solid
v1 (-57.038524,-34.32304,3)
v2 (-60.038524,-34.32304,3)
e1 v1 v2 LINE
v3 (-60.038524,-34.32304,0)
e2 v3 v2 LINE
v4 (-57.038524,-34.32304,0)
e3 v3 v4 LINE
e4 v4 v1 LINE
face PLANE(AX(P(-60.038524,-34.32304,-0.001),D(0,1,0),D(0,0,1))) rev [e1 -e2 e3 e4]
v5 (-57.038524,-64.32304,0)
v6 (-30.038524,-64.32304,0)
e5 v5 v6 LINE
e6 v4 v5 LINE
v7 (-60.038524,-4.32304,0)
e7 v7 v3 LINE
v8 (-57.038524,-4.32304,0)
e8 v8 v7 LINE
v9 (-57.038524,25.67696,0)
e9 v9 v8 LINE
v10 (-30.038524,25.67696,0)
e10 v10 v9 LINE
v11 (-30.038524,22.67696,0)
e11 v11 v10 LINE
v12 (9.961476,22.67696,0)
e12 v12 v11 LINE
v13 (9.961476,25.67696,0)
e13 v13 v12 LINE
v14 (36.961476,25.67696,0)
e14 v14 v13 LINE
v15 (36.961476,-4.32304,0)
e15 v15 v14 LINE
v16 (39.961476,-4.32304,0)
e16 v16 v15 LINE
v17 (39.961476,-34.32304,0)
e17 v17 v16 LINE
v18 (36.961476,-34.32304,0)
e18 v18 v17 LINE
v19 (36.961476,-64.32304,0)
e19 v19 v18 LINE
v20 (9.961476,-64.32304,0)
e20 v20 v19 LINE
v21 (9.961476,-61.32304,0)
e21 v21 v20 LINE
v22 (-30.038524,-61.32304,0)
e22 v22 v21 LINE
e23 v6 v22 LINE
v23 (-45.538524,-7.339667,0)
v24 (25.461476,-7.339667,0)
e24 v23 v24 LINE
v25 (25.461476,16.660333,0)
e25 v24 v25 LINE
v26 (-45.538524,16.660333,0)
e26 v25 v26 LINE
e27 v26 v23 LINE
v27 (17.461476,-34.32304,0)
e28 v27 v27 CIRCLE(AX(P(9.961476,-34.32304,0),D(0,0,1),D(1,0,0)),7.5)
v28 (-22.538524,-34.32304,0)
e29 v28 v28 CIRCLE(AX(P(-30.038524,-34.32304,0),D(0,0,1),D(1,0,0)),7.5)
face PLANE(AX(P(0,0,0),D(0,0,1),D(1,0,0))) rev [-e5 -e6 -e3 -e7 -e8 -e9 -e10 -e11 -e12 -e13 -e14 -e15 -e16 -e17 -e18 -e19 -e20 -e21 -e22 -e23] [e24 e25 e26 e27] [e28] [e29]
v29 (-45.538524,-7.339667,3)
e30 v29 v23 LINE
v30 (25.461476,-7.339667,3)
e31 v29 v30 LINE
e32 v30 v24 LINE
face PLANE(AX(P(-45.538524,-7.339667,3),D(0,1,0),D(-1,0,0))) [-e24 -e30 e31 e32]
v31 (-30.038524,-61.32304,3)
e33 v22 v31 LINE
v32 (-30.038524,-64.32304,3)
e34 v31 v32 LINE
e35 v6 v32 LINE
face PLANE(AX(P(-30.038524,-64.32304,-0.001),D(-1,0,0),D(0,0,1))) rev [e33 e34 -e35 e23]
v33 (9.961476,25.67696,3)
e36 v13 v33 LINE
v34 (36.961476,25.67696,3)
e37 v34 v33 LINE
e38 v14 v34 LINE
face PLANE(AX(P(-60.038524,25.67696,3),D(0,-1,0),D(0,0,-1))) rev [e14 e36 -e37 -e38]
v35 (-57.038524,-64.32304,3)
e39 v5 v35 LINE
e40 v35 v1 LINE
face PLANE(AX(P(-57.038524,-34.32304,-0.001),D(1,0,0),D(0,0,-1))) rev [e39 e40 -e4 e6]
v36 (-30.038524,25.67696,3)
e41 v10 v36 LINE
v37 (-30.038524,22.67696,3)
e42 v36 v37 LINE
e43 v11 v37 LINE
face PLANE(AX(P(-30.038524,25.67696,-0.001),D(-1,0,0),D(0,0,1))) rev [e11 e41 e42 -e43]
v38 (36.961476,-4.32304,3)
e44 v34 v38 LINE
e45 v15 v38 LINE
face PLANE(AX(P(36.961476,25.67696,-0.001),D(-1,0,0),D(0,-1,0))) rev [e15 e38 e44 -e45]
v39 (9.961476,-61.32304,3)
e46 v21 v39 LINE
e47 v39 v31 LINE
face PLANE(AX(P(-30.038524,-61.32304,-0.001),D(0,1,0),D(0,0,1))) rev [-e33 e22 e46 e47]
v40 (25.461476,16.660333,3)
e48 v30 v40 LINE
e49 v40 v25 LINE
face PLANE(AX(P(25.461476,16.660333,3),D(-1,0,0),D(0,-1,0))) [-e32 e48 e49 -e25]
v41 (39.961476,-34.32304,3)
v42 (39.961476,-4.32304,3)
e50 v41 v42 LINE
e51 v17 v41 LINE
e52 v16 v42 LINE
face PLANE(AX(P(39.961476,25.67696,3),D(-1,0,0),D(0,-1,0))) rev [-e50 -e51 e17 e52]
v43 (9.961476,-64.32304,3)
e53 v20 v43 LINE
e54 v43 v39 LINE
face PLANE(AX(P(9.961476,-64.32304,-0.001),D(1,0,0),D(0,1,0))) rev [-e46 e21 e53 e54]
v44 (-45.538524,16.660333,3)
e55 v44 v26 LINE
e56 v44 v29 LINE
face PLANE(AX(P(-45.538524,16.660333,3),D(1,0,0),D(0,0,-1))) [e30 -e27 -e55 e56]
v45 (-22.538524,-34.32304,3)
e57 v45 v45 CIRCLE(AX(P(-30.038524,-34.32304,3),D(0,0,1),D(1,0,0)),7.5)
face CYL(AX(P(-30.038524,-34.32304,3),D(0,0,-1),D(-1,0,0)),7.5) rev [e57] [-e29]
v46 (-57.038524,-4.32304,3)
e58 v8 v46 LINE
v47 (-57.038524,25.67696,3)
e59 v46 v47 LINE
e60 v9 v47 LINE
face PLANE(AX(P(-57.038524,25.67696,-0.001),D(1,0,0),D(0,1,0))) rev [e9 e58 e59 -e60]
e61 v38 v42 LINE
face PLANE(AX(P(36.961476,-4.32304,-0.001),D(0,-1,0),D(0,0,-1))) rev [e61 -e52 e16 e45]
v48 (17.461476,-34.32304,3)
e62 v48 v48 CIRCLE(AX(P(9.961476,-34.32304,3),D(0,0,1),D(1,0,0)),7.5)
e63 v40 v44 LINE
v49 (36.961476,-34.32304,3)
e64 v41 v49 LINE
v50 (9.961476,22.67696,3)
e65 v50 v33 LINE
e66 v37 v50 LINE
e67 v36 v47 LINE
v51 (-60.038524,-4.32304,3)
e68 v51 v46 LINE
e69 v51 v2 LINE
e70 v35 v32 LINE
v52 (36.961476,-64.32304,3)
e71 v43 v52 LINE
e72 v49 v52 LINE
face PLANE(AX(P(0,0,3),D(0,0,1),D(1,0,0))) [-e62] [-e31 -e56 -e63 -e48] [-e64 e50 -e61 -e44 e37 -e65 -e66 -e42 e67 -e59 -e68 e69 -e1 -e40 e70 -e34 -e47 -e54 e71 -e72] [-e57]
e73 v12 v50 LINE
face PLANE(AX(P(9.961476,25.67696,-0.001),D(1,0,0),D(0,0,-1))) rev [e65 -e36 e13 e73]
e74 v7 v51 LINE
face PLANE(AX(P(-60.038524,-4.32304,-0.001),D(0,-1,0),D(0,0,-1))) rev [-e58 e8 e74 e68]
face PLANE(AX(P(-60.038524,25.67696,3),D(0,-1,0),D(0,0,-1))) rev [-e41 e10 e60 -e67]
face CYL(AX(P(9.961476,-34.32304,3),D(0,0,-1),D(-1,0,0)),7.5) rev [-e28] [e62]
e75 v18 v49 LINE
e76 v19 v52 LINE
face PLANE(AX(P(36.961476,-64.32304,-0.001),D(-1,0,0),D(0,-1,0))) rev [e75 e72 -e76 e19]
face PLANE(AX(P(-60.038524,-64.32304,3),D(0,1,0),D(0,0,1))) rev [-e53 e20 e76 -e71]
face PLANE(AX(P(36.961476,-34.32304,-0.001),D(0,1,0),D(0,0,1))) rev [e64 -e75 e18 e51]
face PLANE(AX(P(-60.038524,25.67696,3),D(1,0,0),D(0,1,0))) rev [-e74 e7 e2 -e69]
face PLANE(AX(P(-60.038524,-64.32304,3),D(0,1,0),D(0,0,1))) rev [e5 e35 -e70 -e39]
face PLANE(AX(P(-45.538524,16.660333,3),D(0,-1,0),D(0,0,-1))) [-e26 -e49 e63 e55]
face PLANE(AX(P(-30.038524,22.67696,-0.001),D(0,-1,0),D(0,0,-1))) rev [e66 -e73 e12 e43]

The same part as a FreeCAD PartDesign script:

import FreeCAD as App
import Part
import Sketcher
from FreeCAD import Vector
Q = App.Units.Quantity

doc = App.newDocument("Part")
params = doc.addObject("Spreadsheet::Sheet", "Params")
for row, (alias, value) in enumerate([
    ("sketch1_diameter", "15 mm"),
    ("sketch1_width", "100 mm"),
    ("sketch1_width2", "71 mm"),
    ("sketch1_height", "90 mm"),
    ("sketch1_height2", "24 mm"),
    ("pad1_length", "3 mm"),
    ("sketch2_width", "40 mm"),
    ("sketch2_height", "3 mm"),
    ("sketch3_width", "3 mm"),
    ("sketch3_height", "30 mm"),
    ("sketch4_width", "3 mm"),
    ("sketch4_height", "30 mm"),
    ("sketch5_width", "40 mm"),
    ("sketch5_height", "3 mm"),
    ("sketch6_width", "3 mm"),
    ("sketch6_height", "30 mm"),
    ("sketch7_width", "3 mm"),
    ("sketch7_height", "30 mm"),
], start=1):
    params.set(f"A{row}", alias)
    params.set(f"B{row}", "=" + value)
    params.setAlias(f"B{row}", alias)

body = doc.addObject("PartDesign::Body", "Body")

# Sketch on XY plane
sketch1 = doc.addObject("Sketcher::SketchObject", "Sketch")
body.addObject(sketch1)
sketch1.AttachmentSupport = (doc.XY_Plane, [""])
sketch1.MapMode = "FlatFace"
sketch1.addGeometry(Part.LineSegment(Vector(-60.038524, 25.67696, 0), Vector(-60.038524, -64.32304, 0)), False)
sketch1.addGeometry(Part.LineSegment(Vector(-60.038524, -64.32304, 0), Vector(39.961476, -64.32304, 0)), False)
sketch1.addGeometry(Part.LineSegment(Vector(39.961476, -64.32304, 0), Vector(39.961476, 25.67696, 0)), False)
sketch1.addGeometry(Part.LineSegment(Vector(39.961476, 25.67696, 0), Vector(-60.038524, 25.67696, 0)), False)
sketch1.addGeometry(Part.Circle(Vector(-30.038524, -34.32304, 0), Vector(0, 0, 1), 7.5), False)
sketch1.addGeometry(Part.Circle(Vector(9.961476, -34.32304, 0), Vector(0, 0, 1), 7.5), False)
sketch1.addGeometry(Part.LineSegment(Vector(25.461476, -7.339667, 0), Vector(-45.538524, -7.339667, 0)), False)
sketch1.addGeometry(Part.LineSegment(Vector(-45.538524, -7.339667, 0), Vector(-45.538524, 16.660333, 0)), False)
sketch1.addGeometry(Part.LineSegment(Vector(-45.538524, 16.660333, 0), Vector(25.461476, 16.660333, 0)), False)
sketch1.addGeometry(Part.LineSegment(Vector(25.461476, 16.660333, 0), Vector(25.461476, -7.339667, 0)), False)
sketch1.addConstraint(Sketcher.Constraint("Coincident", 0, 2, 1, 1))
sketch1.addConstraint(Sketcher.Constraint("Coincident", 1, 2, 2, 1))
sketch1.addConstraint(Sketcher.Constraint("Coincident", 2, 2, 3, 1))
sketch1.addConstraint(Sketcher.Constraint("Coincident", 3, 2, 0, 1))
sketch1.addConstraint(Sketcher.Constraint("Coincident", 6, 2, 7, 1))
sketch1.addConstraint(Sketcher.Constraint("Coincident", 7, 2, 8, 1))
sketch1.addConstraint(Sketcher.Constraint("Coincident", 8, 2, 9, 1))
sketch1.addConstraint(Sketcher.Constraint("Coincident", 9, 2, 6, 1))
sketch1.addConstraint(Sketcher.Constraint("Vertical", 0))
sketch1.addConstraint(Sketcher.Constraint("Horizontal", 1))
sketch1.addConstraint(Sketcher.Constraint("Vertical", 2))
sketch1.addConstraint(Sketcher.Constraint("Horizontal", 3))
sketch1.addConstraint(Sketcher.Constraint("Horizontal", 6))
sketch1.addConstraint(Sketcher.Constraint("Vertical", 7))
sketch1.addConstraint(Sketcher.Constraint("Horizontal", 8))
sketch1.addConstraint(Sketcher.Constraint("Vertical", 9))
sketch1.addConstraint(Sketcher.Constraint("Equal", 4, 5))
sketch1.addConstraint(Sketcher.Constraint("Horizontal", 4, 3, 5, 3))
sketch1.addConstraint(Sketcher.Constraint("Diameter", 4, Q("15 mm")))
sketch1.addConstraint(Sketcher.Constraint("DistanceX", 1, 1, 1, 2, Q("100 mm")))
sketch1.addConstraint(Sketcher.Constraint("DistanceX", 6, 2, 6, 1, Q("71 mm")))
sketch1.addConstraint(Sketcher.Constraint("DistanceY", 0, 2, 0, 1, Q("90 mm")))
sketch1.addConstraint(Sketcher.Constraint("DistanceY", 7, 1, 7, 2, Q("24 mm")))
sketch1.addConstraint(Sketcher.Constraint("DistanceX", 4, 3, 5, 3, Q("40 mm")))
sketch1.addConstraint(Sketcher.Constraint("DistanceX", 0, 2, 4, 3, Q("30 mm")))
sketch1.addConstraint(Sketcher.Constraint("DistanceY", 0, 2, 4, 3, Q("30 mm")))
sketch1.addConstraint(Sketcher.Constraint("DistanceX", 6, 2, 4, 3, Q("15.5 mm")))
sketch1.addConstraint(Sketcher.Constraint("DistanceY", 4, 3, -1, 1, Q("34.32304 mm")))
sketch1.addConstraint(Sketcher.Constraint("DistanceX", 4, 3, -1, 1, Q("30.038524 mm")))
sketch1.addConstraint(Sketcher.Constraint("DistanceY", 6, 2, -1, 1, Q("7.339667 mm")))
sketch1.setExpression("Constraints[18]", "Params.sketch1_diameter")
sketch1.setExpression("Constraints[19]", "Params.sketch1_width")
sketch1.setExpression("Constraints[20]", "Params.sketch1_width2")
sketch1.setExpression("Constraints[21]", "Params.sketch1_height")
sketch1.setExpression("Constraints[22]", "Params.sketch1_height2")
pad1 = doc.addObject("PartDesign::Pad", "Pad")
body.addObject(pad1)
pad1.Profile = sketch1
pad1.setExpression("Length", "Params.pad1_length")

# Sketch on XY plane
sketch2 = doc.addObject("Sketcher::SketchObject", "Sketch001")
body.addObject(sketch2)
sketch2.AttachmentSupport = (doc.XY_Plane, [""])
sketch2.MapMode = "FlatFace"
sketch2.AttachmentOffset = App.Placement(Vector(0, 0, 3), App.Rotation())
sketch2.addGeometry(Part.LineSegment(Vector(-30.038524, 25.67696, 0), Vector(-30.038524, 22.67696, 0)), False)
sketch2.addGeometry(Part.LineSegment(Vector(-30.038524, 22.67696, 0), Vector(9.961476, 22.67696, 0)), False)
sketch2.addGeometry(Part.LineSegment(Vector(9.961476, 22.67696, 0), Vector(9.961476, 25.67696, 0)), False)
sketch2.addGeometry(Part.LineSegment(Vector(9.961476, 25.67696, 0), Vector(-30.038524, 25.67696, 0)), False)
sketch2.addConstraint(Sketcher.Constraint("Coincident", 0, 2, 1, 1))
sketch2.addConstraint(Sketcher.Constraint("Coincident", 1, 2, 2, 1))
sketch2.addConstraint(Sketcher.Constraint("Coincident", 2, 2, 3, 1))
sketch2.addConstraint(Sketcher.Constraint("Coincident", 3, 2, 0, 1))
sketch2.addConstraint(Sketcher.Constraint("Vertical", 0))
sketch2.addConstraint(Sketcher.Constraint("Horizontal", 1))
sketch2.addConstraint(Sketcher.Constraint("Vertical", 2))
sketch2.addConstraint(Sketcher.Constraint("Horizontal", 3))
sketch2.addConstraint(Sketcher.Constraint("DistanceX", 1, 1, 1, 2, Q("40 mm")))
sketch2.addConstraint(Sketcher.Constraint("DistanceY", 0, 2, 0, 1, Q("3 mm")))
sketch2.addConstraint(Sketcher.Constraint("DistanceY", -1, 1, 0, 2, Q("22.67696 mm")))
sketch2.addConstraint(Sketcher.Constraint("DistanceX", 0, 2, -1, 1, Q("30.038524 mm")))
sketch2.setExpression("Constraints[8]", "Params.sketch2_width")
sketch2.setExpression("Constraints[9]", "Params.sketch2_height")
pocket1 = doc.addObject("PartDesign::Pocket", "Pocket")
body.addObject(pocket1)
pocket1.Profile = sketch2
pocket1.Type = "UpToFirst"

# Sketch on XY plane
sketch3 = doc.addObject("Sketcher::SketchObject", "Sketch002")
body.addObject(sketch3)
sketch3.AttachmentSupport = (doc.XY_Plane, [""])
sketch3.MapMode = "FlatFace"
sketch3.AttachmentOffset = App.Placement(Vector(0, 0, 3), App.Rotation())
sketch3.addGeometry(Part.LineSegment(Vector(-60.038524, 25.67696, 0), Vector(-60.038524, -4.32304, 0)), False)
sketch3.addGeometry(Part.LineSegment(Vector(-60.038524, -4.32304, 0), Vector(-57.038524, -4.32304, 0)), False)
sketch3.addGeometry(Part.LineSegment(Vector(-57.038524, -4.32304, 0), Vector(-57.038524, 25.67696, 0)), False)
sketch3.addGeometry(Part.LineSegment(Vector(-57.038524, 25.67696, 0), Vector(-60.038524, 25.67696, 0)), False)
sketch3.addConstraint(Sketcher.Constraint("Coincident", 0, 2, 1, 1))
sketch3.addConstraint(Sketcher.Constraint("Coincident", 1, 2, 2, 1))
sketch3.addConstraint(Sketcher.Constraint("Coincident", 2, 2, 3, 1))
sketch3.addConstraint(Sketcher.Constraint("Coincident", 3, 2, 0, 1))
sketch3.addConstraint(Sketcher.Constraint("Vertical", 0))
sketch3.addConstraint(Sketcher.Constraint("Horizontal", 1))
sketch3.addConstraint(Sketcher.Constraint("Vertical", 2))
sketch3.addConstraint(Sketcher.Constraint("Horizontal", 3))
sketch3.addConstraint(Sketcher.Constraint("DistanceX", 1, 1, 1, 2, Q("3 mm")))
sketch3.addConstraint(Sketcher.Constraint("DistanceY", 0, 2, 0, 1, Q("30 mm")))
sketch3.addConstraint(Sketcher.Constraint("DistanceY", 0, 2, -1, 1, Q("4.32304 mm")))
sketch3.addConstraint(Sketcher.Constraint("DistanceX", 0, 2, -1, 1, Q("60.038524 mm")))
sketch3.setExpression("Constraints[8]", "Params.sketch3_width")
sketch3.setExpression("Constraints[9]", "Params.sketch3_height")
pocket2 = doc.addObject("PartDesign::Pocket", "Pocket001")
body.addObject(pocket2)
pocket2.Profile = sketch3
pocket2.Type = "UpToFirst"

# Sketch on XY plane
sketch4 = doc.addObject("Sketcher::SketchObject", "Sketch003")
body.addObject(sketch4)
sketch4.AttachmentSupport = (doc.XY_Plane, [""])
sketch4.MapMode = "FlatFace"
sketch4.AttachmentOffset = App.Placement(Vector(0, 0, 3), App.Rotation())
sketch4.addGeometry(Part.LineSegment(Vector(-60.038524, -34.32304, 0), Vector(-60.038524, -64.32304, 0)), False)
sketch4.addGeometry(Part.LineSegment(Vector(-60.038524, -64.32304, 0), Vector(-57.038524, -64.32304, 0)), False)
sketch4.addGeometry(Part.LineSegment(Vector(-57.038524, -64.32304, 0), Vector(-57.038524, -34.32304, 0)), False)
sketch4.addGeometry(Part.LineSegment(Vector(-57.038524, -34.32304, 0), Vector(-60.038524, -34.32304, 0)), False)
sketch4.addConstraint(Sketcher.Constraint("Coincident", 0, 2, 1, 1))
sketch4.addConstraint(Sketcher.Constraint("Coincident", 1, 2, 2, 1))
sketch4.addConstraint(Sketcher.Constraint("Coincident", 2, 2, 3, 1))
sketch4.addConstraint(Sketcher.Constraint("Coincident", 3, 2, 0, 1))
sketch4.addConstraint(Sketcher.Constraint("Vertical", 0))
sketch4.addConstraint(Sketcher.Constraint("Horizontal", 1))
sketch4.addConstraint(Sketcher.Constraint("Vertical", 2))
sketch4.addConstraint(Sketcher.Constraint("Horizontal", 3))
sketch4.addConstraint(Sketcher.Constraint("DistanceX", 1, 1, 1, 2, Q("3 mm")))
sketch4.addConstraint(Sketcher.Constraint("DistanceY", 0, 2, 0, 1, Q("30 mm")))
sketch4.addConstraint(Sketcher.Constraint("DistanceY", 0, 2, -1, 1, Q("64.32304 mm")))
sketch4.addConstraint(Sketcher.Constraint("DistanceX", 0, 2, -1, 1, Q("60.038524 mm")))
sketch4.setExpression("Constraints[8]", "Params.sketch4_width")
sketch4.setExpression("Constraints[9]", "Params.sketch4_height")
pocket3 = doc.addObject("PartDesign::Pocket", "Pocket002")
body.addObject(pocket3)
pocket3.Profile = sketch4
pocket3.Type = "UpToFirst"

# Sketch on XY plane
sketch5 = doc.addObject("Sketcher::SketchObject", "Sketch004")
body.addObject(sketch5)
sketch5.AttachmentSupport = (doc.XY_Plane, [""])
sketch5.MapMode = "FlatFace"
sketch5.AttachmentOffset = App.Placement(Vector(0, 0, 3), App.Rotation())
sketch5.addGeometry(Part.LineSegment(Vector(-30.038524, -61.32304, 0), Vector(-30.038524, -64.32304, 0)), False)
sketch5.addGeometry(Part.LineSegment(Vector(-30.038524, -64.32304, 0), Vector(9.961476, -64.32304, 0)), False)
sketch5.addGeometry(Part.LineSegment(Vector(9.961476, -64.32304, 0), Vector(9.961476, -61.32304, 0)), False)
sketch5.addGeometry(Part.LineSegment(Vector(9.961476, -61.32304, 0), Vector(-30.038524, -61.32304, 0)), False)
sketch5.addConstraint(Sketcher.Constraint("Coincident", 0, 2, 1, 1))
sketch5.addConstraint(Sketcher.Constraint("Coincident", 1, 2, 2, 1))
sketch5.addConstraint(Sketcher.Constraint("Coincident", 2, 2, 3, 1))
sketch5.addConstraint(Sketcher.Constraint("Coincident", 3, 2, 0, 1))
sketch5.addConstraint(Sketcher.Constraint("Vertical", 0))
sketch5.addConstraint(Sketcher.Constraint("Horizontal", 1))
sketch5.addConstraint(Sketcher.Constraint("Vertical", 2))
sketch5.addConstraint(Sketcher.Constraint("Horizontal", 3))
sketch5.addConstraint(Sketcher.Constraint("DistanceX", 1, 1, 1, 2, Q("40 mm")))
sketch5.addConstraint(Sketcher.Constraint("DistanceY", 0, 2, 0, 1, Q("3 mm")))
sketch5.addConstraint(Sketcher.Constraint("DistanceY", 0, 2, -1, 1, Q("64.32304 mm")))
sketch5.addConstraint(Sketcher.Constraint("DistanceX", 0, 2, -1, 1, Q("30.038524 mm")))
sketch5.setExpression("Constraints[8]", "Params.sketch5_width")
sketch5.setExpression("Constraints[9]", "Params.sketch5_height")
pocket4 = doc.addObject("PartDesign::Pocket", "Pocket003")
body.addObject(pocket4)
pocket4.Profile = sketch5
pocket4.Type = "UpToFirst"

# Sketch on XY plane
sketch6 = doc.addObject("Sketcher::SketchObject", "Sketch005")
body.addObject(sketch6)
sketch6.AttachmentSupport = (doc.XY_Plane, [""])
sketch6.MapMode = "FlatFace"
sketch6.AttachmentOffset = App.Placement(Vector(0, 0, 3), App.Rotation())
sketch6.addGeometry(Part.LineSegment(Vector(36.961476, -34.32304, 0), Vector(36.961476, -64.32304, 0)), False)
sketch6.addGeometry(Part.LineSegment(Vector(36.961476, -64.32304, 0), Vector(39.961476, -64.32304, 0)), False)
sketch6.addGeometry(Part.LineSegment(Vector(39.961476, -64.32304, 0), Vector(39.961476, -34.32304, 0)), False)
sketch6.addGeometry(Part.LineSegment(Vector(39.961476, -34.32304, 0), Vector(36.961476, -34.32304, 0)), False)
sketch6.addConstraint(Sketcher.Constraint("Coincident", 0, 2, 1, 1))
sketch6.addConstraint(Sketcher.Constraint("Coincident", 1, 2, 2, 1))
sketch6.addConstraint(Sketcher.Constraint("Coincident", 2, 2, 3, 1))
sketch6.addConstraint(Sketcher.Constraint("Coincident", 3, 2, 0, 1))
sketch6.addConstraint(Sketcher.Constraint("Vertical", 0))
sketch6.addConstraint(Sketcher.Constraint("Horizontal", 1))
sketch6.addConstraint(Sketcher.Constraint("Vertical", 2))
sketch6.addConstraint(Sketcher.Constraint("Horizontal", 3))
sketch6.addConstraint(Sketcher.Constraint("DistanceX", 1, 1, 1, 2, Q("3 mm")))
sketch6.addConstraint(Sketcher.Constraint("DistanceY", 0, 2, 0, 1, Q("30 mm")))
sketch6.addConstraint(Sketcher.Constraint("DistanceY", 0, 2, -1, 1, Q("64.32304 mm")))
sketch6.addConstraint(Sketcher.Constraint("DistanceX", -1, 1, 0, 2, Q("36.961476 mm")))
sketch6.setExpression("Constraints[8]", "Params.sketch6_width")
sketch6.setExpression("Constraints[9]", "Params.sketch6_height")
pocket5 = doc.addObject("PartDesign::Pocket", "Pocket004")
body.addObject(pocket5)
pocket5.Profile = sketch6
pocket5.Type = "UpToFirst"

# Sketch on XY plane
sketch7 = doc.addObject("Sketcher::SketchObject", "Sketch006")
body.addObject(sketch7)
sketch7.AttachmentSupport = (doc.XY_Plane, [""])
sketch7.MapMode = "FlatFace"
sketch7.AttachmentOffset = App.Placement(Vector(0, 0, 3), App.Rotation())
sketch7.addGeometry(Part.LineSegment(Vector(36.961476, 25.67696, 0), Vector(36.961476, -4.32304, 0)), False)
sketch7.addGeometry(Part.LineSegment(Vector(36.961476, -4.32304, 0), Vector(39.961476, -4.32304, 0)), False)
sketch7.addGeometry(Part.LineSegment(Vector(39.961476, -4.32304, 0), Vector(39.961476, 25.67696, 0)), False)
sketch7.addGeometry(Part.LineSegment(Vector(39.961476, 25.67696, 0), Vector(36.961476, 25.67696, 0)), False)
sketch7.addConstraint(Sketcher.Constraint("Coincident", 0, 2, 1, 1))
sketch7.addConstraint(Sketcher.Constraint("Coincident", 1, 2, 2, 1))
sketch7.addConstraint(Sketcher.Constraint("Coincident", 2, 2, 3, 1))
sketch7.addConstraint(Sketcher.Constraint("Coincident", 3, 2, 0, 1))
sketch7.addConstraint(Sketcher.Constraint("Vertical", 0))
sketch7.addConstraint(Sketcher.Constraint("Horizontal", 1))
sketch7.addConstraint(Sketcher.Constraint("Vertical", 2))
sketch7.addConstraint(Sketcher.Constraint("Horizontal", 3))
sketch7.addConstraint(Sketcher.Constraint("DistanceX", 1, 1, 1, 2, Q("3 mm")))
sketch7.addConstraint(Sketcher.Constraint("DistanceY", 0, 2, 0, 1, Q("30 mm")))
sketch7.addConstraint(Sketcher.Constraint("DistanceY", 0, 2, -1, 1, Q("4.32304 mm")))
sketch7.addConstraint(Sketcher.Constraint("DistanceX", -1, 1, 0, 2, Q("36.961476 mm")))
sketch7.setExpression("Constraints[8]", "Params.sketch7_width")
sketch7.setExpression("Constraints[9]", "Params.sketch7_height")
pocket6 = doc.addObject("PartDesign::Pocket", "Pocket005")
body.addObject(pocket6)
pocket6.Profile = sketch7
pocket6.Type = "UpToFirst"

doc.recompute()
